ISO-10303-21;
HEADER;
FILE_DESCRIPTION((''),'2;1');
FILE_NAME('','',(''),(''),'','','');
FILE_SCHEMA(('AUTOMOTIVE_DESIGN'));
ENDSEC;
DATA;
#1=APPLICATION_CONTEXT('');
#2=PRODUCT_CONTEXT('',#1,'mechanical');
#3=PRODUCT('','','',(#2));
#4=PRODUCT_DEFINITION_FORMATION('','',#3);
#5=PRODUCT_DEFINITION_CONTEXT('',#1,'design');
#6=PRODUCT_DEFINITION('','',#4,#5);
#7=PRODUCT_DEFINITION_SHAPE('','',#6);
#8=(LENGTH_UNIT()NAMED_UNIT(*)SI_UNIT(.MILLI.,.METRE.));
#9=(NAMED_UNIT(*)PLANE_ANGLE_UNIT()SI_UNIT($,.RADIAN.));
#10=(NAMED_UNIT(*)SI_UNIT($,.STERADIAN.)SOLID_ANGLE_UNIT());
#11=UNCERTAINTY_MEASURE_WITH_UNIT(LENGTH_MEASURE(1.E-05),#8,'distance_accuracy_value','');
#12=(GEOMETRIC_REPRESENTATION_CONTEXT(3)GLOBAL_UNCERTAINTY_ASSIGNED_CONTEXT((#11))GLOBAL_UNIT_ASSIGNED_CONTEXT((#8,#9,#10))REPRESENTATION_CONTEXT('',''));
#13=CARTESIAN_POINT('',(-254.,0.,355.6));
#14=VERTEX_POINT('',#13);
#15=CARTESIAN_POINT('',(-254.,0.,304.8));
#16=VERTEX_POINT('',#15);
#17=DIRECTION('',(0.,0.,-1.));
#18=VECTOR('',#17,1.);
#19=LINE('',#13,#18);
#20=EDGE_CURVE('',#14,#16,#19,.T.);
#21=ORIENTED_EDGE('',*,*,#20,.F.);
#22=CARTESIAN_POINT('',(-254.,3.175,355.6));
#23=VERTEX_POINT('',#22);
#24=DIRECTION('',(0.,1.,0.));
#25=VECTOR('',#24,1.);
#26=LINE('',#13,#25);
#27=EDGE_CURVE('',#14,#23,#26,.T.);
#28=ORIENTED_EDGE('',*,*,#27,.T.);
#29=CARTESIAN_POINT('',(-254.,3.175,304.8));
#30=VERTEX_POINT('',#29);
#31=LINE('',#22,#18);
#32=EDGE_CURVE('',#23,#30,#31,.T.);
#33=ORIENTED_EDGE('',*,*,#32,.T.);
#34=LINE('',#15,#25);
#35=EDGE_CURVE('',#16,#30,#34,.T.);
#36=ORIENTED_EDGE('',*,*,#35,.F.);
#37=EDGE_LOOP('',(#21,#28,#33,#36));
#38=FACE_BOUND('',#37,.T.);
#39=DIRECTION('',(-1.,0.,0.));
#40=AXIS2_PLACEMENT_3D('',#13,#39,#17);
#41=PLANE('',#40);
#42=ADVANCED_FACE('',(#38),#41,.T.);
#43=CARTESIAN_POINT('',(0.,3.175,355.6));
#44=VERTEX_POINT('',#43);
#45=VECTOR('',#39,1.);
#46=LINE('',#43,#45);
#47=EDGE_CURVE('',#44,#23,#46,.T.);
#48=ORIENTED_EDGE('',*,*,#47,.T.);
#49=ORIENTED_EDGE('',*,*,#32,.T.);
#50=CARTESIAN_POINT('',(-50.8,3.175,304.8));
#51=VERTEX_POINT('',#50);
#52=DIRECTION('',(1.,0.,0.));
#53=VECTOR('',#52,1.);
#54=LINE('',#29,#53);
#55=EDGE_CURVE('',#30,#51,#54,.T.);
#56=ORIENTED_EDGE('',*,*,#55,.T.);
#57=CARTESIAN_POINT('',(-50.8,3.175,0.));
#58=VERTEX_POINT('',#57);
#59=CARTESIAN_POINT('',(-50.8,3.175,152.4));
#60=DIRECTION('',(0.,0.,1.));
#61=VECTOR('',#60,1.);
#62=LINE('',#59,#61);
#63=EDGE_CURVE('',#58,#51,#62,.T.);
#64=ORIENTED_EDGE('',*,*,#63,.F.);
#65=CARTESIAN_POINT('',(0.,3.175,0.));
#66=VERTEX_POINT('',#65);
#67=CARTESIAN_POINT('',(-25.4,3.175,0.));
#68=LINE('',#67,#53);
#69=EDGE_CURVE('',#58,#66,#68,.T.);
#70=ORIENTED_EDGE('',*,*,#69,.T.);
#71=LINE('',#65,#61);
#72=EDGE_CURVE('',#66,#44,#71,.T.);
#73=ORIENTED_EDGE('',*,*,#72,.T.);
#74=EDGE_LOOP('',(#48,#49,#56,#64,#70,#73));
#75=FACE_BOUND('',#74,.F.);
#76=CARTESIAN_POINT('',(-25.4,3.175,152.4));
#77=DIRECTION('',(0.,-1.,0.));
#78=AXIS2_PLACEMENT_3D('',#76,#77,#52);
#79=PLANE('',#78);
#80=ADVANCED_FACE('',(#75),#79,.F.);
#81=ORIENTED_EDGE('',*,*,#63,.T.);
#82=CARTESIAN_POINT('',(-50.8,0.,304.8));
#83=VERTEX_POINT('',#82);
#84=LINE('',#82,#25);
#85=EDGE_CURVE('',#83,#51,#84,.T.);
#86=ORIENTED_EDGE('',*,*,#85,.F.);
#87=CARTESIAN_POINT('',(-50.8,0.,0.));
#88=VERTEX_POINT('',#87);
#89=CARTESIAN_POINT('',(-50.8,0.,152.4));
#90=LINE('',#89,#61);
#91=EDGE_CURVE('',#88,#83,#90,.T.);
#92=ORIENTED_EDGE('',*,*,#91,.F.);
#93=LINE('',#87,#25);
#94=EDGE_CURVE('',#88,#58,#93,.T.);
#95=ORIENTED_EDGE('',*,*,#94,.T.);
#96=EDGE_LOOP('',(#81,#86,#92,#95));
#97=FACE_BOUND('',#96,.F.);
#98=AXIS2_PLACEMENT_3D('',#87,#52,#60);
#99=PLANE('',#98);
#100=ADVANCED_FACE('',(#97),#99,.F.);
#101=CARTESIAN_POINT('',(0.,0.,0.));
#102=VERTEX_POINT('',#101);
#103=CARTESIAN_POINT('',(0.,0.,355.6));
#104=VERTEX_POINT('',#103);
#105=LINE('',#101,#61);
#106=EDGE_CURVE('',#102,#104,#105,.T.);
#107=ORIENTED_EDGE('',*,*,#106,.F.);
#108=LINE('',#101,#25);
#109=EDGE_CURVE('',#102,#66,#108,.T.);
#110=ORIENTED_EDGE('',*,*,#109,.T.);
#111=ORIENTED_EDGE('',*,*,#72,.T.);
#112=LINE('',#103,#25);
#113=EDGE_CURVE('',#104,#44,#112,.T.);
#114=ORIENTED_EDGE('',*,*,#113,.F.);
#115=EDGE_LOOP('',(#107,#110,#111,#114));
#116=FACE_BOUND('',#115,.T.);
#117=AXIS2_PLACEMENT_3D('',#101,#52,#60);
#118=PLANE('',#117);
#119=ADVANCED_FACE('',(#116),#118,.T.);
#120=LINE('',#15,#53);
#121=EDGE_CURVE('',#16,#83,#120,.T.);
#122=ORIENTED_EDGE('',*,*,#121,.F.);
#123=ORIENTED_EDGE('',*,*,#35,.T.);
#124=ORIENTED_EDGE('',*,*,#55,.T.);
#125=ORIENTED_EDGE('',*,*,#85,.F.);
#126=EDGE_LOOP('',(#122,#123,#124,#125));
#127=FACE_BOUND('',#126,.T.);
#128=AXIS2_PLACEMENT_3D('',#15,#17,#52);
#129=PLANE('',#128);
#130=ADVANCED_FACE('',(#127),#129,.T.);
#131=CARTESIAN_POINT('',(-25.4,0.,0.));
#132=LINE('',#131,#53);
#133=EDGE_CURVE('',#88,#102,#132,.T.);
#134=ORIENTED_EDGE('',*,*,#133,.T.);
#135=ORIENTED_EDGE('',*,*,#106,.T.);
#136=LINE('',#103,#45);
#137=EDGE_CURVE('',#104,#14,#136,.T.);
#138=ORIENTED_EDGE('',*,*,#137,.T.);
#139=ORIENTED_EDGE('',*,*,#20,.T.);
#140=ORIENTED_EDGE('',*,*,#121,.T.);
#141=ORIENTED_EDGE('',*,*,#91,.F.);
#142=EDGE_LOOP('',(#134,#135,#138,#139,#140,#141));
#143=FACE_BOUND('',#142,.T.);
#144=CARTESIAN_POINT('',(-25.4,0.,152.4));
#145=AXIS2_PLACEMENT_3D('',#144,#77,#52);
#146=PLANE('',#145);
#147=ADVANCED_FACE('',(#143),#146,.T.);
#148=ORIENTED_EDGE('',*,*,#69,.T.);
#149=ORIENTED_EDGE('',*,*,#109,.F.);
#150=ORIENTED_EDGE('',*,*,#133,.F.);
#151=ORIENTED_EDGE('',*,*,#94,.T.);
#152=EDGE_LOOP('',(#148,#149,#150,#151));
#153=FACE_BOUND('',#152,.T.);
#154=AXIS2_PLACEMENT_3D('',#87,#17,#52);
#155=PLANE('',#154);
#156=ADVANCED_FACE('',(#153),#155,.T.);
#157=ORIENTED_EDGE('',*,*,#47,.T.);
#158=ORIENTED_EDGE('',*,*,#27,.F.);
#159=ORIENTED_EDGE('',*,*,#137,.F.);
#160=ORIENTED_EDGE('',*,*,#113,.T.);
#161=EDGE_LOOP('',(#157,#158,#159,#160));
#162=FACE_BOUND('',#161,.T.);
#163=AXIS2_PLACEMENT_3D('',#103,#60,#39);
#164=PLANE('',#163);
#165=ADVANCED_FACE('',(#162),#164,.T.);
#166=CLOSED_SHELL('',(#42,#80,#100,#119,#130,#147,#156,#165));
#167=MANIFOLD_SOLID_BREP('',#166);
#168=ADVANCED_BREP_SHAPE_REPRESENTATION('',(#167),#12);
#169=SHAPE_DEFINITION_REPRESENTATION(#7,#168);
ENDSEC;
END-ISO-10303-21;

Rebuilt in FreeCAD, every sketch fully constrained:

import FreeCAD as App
import Part
import Sketcher
from FreeCAD import Vector
Q = App.Units.Quantity


def add_polygon(sketch, points):
    """Adds a closed chain of lines whose ends are joined by coincident constraints."""
    first, n = sketch.GeometryCount, len(points)
    for a, b in zip(points, points[1:] + points[:1]):
        sketch.addGeometry(Part.LineSegment(App.Vector(*a, 0), App.Vector(*b, 0)), False)
    for i in range(n):
        sketch.addConstraint(Sketcher.Constraint("Coincident", first + i, 2, first + (i + 1) % n, 1))

doc = App.newDocument("Part")
body = doc.addObject("PartDesign::Body", "Body")

sketch1 = body.newObject("Sketcher::SketchObject", "Sketch")
sketch1.AttachmentSupport = (doc.getObject("XZ_Plane"), [""])
sketch1.MapMode = "FlatFace"
add_polygon(sketch1, [(-51, 305), (-51, 0), (0, 0), (0, 356), (-254, 356), (-254, 305)])
sketch1.addConstraint([
    Sketcher.Constraint("Vertical", 0),
    Sketcher.Constraint("Horizontal", 1),
    Sketcher.Constraint("Vertical", 2),
    Sketcher.Constraint("Horizontal", 3),
    Sketcher.Constraint("Vertical", 4),
    Sketcher.Constraint("Horizontal", 5),
    Sketcher.Constraint("Coincident", 1, 2, -1, 1),
    Sketcher.Constraint("Equal", 1, 4),
    Sketcher.Constraint("DistanceX", 1, 1, 1, 2, Q("2 in")),
    Sketcher.Constraint("DistanceX", 3, 2, 3, 1, Q("10 in")),
    Sketcher.Constraint("DistanceY", 0, 2, 0, 1, Q("12 in")),
])
pad1 = body.newObject("PartDesign::Pad", "Pad")
pad1.Profile = sketch1
pad1.Length = Q("0.125 in")
pad1.Reversed = True

doc.recompute()
